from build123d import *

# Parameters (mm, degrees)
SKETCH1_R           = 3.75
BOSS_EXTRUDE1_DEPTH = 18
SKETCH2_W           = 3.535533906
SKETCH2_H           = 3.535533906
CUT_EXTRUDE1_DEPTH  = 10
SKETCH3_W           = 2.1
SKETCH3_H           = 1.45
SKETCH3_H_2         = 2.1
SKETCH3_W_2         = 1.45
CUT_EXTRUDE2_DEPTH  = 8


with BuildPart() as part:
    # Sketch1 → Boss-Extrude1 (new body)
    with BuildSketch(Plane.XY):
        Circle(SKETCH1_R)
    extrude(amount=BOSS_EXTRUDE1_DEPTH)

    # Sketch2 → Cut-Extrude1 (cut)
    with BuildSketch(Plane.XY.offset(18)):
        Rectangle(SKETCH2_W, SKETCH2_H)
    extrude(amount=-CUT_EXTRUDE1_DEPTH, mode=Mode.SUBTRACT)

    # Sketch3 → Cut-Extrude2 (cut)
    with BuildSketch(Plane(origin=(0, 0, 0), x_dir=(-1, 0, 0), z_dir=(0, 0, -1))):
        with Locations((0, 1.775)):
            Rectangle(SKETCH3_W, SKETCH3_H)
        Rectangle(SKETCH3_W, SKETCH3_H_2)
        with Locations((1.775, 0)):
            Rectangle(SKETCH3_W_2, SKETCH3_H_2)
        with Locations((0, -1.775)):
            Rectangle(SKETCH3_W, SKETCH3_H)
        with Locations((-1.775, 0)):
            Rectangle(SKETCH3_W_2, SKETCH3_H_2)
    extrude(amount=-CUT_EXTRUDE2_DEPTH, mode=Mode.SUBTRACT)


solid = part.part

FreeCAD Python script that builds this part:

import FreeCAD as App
import Part
import Sketcher
from FreeCAD import Vector
Q = App.Units.Quantity


def add_polygon(sketch, points):
    """Adds a closed chain of lines whose ends are joined by coincident constraints."""
    first, n = sketch.GeometryCount, len(points)
    for a, b in zip(points, points[1:] + points[:1]):
        sketch.addGeometry(Part.LineSegment(App.Vector(*a, 0), App.Vector(*b, 0)), False)
    for i in range(n):
        sketch.addConstraint(Sketcher.Constraint("Coincident", first + i, 2, first + (i + 1) % n, 1))

doc = App.newDocument("Part")
body = doc.addObject("PartDesign::Body", "Body")

# Sketch on XY plane
sketch1 = doc.addObject("Sketcher::SketchObject", "Sketch")
body.addObject(sketch1)
sketch1.AttachmentSupport = (doc.XY_Plane, [""])
sketch1.MapMode = "FlatFace"
sketch1.addGeometry(Part.Circle(Vector(0, 0, 0), Vector(0, 0, 1), 3.75), False)
sketch1.addConstraint([
    Sketcher.Constraint("Coincident", 0, 3, -1, 1),
    Sketcher.Constraint("Diameter", 0, Q("7.5 mm")),
])
pad1 = doc.addObject("PartDesign::Pad", "Pad")
body.addObject(pad1)
pad1.Profile = sketch1
pad1.Length = 18

# Sketch on XY plane
sketch2 = doc.addObject("Sketcher::SketchObject", "Sketch001")
body.addObject(sketch2)
sketch2.AttachmentSupport = (doc.XY_Plane, [""])
sketch2.MapMode = "FlatFace"
sketch2.AttachmentOffset = App.Placement(Vector(0, 0, 18), App.Rotation())
add_polygon(sketch2, [(-1.767767, 1.767767), (-1.767767, -1.767767), (1.767767, -1.767767), (1.767767, 1.767767)])  # lines 0-3
sketch2.addConstraint([
    Sketcher.Constraint("Vertical", 0),
    Sketcher.Constraint("Horizontal", 1),
    Sketcher.Constraint("Vertical", 2),
    Sketcher.Constraint("Horizontal", 3),
    Sketcher.Constraint("Symmetric", 0, 2, 2, 2, -1, 1),
    Sketcher.Constraint("Equal", 3, 0),
    Sketcher.Constraint("DistanceX", 1, 1, 1, 2, Q("3.535534 mm")),
])
pocket1 = doc.addObject("PartDesign::Pocket", "Pocket")
body.addObject(pocket1)
pocket1.Profile = sketch2
pocket1.Length = 10

# Sketch on XY plane
sketch3 = doc.addObject("Sketcher::SketchObject", "Sketch002")
body.addObject(sketch3)
sketch3.AttachmentSupport = (doc.XY_Plane, [""])
sketch3.MapMode = "FlatFace"
add_polygon(sketch3, [(1.05, 2.5), (1.05, 1.05), (2.5, 1.05), (2.5, -1.05), (1.05, -1.05), (1.05, -2.5), (-1.05, -2.5), (-1.05, -1.05), (-2.5, -1.05), (-2.5, 1.05), (-1.05, 1.05), (-1.05, 2.5)])  # lines 0-11
sketch3.addConstraint([
    Sketcher.Constraint("Vertical", 0),
    Sketcher.Constraint("Horizontal", 1),
    Sketcher.Constraint("Vertical", 2),
    Sketcher.Constraint("Horizontal", 3),
    Sketcher.Constraint("Vertical", 4),
    Sketcher.Constraint("Horizontal", 5),
    Sketcher.Constraint("Vertical", 6),
    Sketcher.Constraint("Horizontal", 7),
    Sketcher.Constraint("Vertical", 8),
    Sketcher.Constraint("Horizontal", 9),
    Sketcher.Constraint("Vertical", 10),
    Sketcher.Constraint("Horizontal", 11),
    Sketcher.Constraint("Symmetric", 0, 2, 6, 2, -1, 1),
    Sketcher.Constraint("Symmetric", 2, 2, 8, 2, -1, 1),
    Sketcher.Constraint("Symmetric", 4, 2, 10, 2, -1, 1),
    Sketcher.Constraint("Symmetric", 3, 2, 6, 2, -2),
    Sketcher.Constraint("Equal", 9, 0),
    Sketcher.Constraint("Equal", 11, 2),
    Sketcher.Constraint("DistanceX", 5, 2, 5, 1, Q("2.1 mm")),
    Sketcher.Constraint("DistanceX", 1, 1, 1, 2, Q("1.45 mm")),
])
pocket2 = doc.addObject("PartDesign::Pocket", "Pocket001")
body.addObject(pocket2)
pocket2.Profile = sketch3
pocket2.Length = 8
pocket2.Reversed = True

doc.recompute()
